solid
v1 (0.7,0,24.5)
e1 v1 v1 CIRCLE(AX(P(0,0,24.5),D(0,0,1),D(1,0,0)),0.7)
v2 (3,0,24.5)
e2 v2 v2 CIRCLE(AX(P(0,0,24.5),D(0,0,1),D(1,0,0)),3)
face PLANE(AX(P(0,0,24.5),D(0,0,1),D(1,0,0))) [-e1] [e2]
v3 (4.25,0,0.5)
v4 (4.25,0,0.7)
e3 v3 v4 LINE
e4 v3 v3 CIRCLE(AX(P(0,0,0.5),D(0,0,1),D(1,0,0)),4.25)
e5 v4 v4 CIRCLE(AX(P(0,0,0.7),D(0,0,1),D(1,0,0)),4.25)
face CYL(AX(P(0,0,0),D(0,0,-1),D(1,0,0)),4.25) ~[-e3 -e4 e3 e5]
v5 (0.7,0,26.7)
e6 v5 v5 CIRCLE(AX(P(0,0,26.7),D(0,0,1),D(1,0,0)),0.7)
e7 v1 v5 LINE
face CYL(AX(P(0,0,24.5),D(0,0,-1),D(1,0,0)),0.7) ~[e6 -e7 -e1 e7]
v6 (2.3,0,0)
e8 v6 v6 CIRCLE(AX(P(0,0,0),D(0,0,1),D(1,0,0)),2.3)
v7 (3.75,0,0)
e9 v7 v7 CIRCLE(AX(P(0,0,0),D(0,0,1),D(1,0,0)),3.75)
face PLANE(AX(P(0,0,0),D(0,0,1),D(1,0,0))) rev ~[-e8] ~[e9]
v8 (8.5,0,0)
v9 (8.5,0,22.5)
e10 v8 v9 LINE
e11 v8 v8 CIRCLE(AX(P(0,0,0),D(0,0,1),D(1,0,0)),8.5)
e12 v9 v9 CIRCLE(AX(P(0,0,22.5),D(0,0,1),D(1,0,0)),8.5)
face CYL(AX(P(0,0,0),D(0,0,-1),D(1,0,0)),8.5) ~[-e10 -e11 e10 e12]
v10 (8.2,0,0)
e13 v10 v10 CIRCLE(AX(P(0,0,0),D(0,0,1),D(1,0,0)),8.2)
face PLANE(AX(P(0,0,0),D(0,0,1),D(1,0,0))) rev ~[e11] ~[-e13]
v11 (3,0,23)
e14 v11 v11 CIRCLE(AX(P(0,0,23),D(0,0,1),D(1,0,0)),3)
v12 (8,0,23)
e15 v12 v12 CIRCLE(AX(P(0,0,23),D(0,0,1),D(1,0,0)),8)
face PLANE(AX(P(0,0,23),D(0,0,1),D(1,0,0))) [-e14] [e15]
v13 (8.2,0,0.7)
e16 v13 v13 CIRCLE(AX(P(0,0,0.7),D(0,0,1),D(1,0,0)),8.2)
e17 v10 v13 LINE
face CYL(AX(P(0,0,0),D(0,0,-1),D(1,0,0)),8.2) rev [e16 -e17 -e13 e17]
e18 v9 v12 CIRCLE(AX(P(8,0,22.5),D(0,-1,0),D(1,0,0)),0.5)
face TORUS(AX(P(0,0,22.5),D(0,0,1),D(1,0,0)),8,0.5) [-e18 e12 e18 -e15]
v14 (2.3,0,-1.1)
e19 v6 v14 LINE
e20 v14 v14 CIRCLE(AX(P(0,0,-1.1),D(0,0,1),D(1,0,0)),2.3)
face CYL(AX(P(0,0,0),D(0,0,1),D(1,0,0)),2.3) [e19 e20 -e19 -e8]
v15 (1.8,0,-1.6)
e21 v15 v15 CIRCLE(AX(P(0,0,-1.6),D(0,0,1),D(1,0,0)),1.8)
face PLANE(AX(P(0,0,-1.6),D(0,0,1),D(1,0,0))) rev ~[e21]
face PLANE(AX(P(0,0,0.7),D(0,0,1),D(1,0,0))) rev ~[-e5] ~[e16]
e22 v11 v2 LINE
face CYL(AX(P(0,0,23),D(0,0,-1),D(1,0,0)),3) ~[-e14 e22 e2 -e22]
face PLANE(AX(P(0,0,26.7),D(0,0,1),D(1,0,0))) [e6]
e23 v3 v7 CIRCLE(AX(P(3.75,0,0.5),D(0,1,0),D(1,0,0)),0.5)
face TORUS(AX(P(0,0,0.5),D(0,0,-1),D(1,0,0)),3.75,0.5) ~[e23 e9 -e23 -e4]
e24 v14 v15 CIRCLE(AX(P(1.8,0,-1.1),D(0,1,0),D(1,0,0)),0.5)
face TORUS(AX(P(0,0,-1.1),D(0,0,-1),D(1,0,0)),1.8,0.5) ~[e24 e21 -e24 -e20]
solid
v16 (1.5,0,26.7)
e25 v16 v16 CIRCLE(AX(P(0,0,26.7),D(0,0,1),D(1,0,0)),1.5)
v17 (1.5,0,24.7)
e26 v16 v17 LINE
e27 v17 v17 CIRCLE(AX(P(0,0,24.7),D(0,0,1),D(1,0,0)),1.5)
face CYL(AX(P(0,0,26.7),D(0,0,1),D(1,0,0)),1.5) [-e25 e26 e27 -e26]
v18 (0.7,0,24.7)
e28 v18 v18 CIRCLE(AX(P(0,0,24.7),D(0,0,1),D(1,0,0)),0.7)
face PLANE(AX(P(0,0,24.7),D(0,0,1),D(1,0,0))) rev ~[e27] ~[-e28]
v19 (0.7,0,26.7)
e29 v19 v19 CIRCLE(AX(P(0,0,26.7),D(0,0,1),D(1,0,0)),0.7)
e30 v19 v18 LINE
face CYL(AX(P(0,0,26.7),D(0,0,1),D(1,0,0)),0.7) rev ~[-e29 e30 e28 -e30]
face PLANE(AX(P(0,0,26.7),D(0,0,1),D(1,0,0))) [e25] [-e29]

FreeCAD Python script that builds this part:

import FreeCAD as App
import Part
import Sketcher

V = App.Vector


def edges_at(feature, points):
    """Names of the edges that pass closest to the given points."""
    edges = feature.Shape.Edges
    near = lambda p: min(range(len(edges)), key=lambda i: edges[i].distToShape(Part.Vertex(*p))[0])
    return sorted({f"Edge{near(p) + 1}" for p in points})

doc = App.newDocument("Part")
body = doc.addObject("PartDesign::Body", "Body")

sketch1 = body.newObject("Sketcher::SketchObject", "Sketch")
sketch1.AttachmentSupport = (doc.getObject("XY_Plane"), [""])
sketch1.MapMode = "FlatFace"
sketch1.addGeometry(Part.Circle(V(0, 0, 0), V(0, 0, 1), 8.5), False)
sketch1.addConstraint(Sketcher.Constraint("Coincident", 0, 3, -1, 1))
sketch1.addConstraint(Sketcher.Constraint("Diameter", 0, 17.0))
pad1 = body.newObject("PartDesign::Pad", "Pad")
pad1.Profile = sketch1
pad1.Length = 23

sketch2 = body.newObject("Sketcher::SketchObject", "Sketch001")
sketch2.AttachmentSupport = (doc.getObject("XY_Plane"), [""])
sketch2.MapMode = "FlatFace"
sketch2.addGeometry(Part.Circle(V(0, 0, 0), V(0, 0, 1), 8.2), False)
sketch2.addConstraint(Sketcher.Constraint("Coincident", 0, 3, -1, 1))
sketch2.addConstraint(Sketcher.Constraint("Diameter", 0, 16.4))
pocket1 = body.newObject("PartDesign::Pocket", "Pocket")
pocket1.Profile = sketch2
pocket1.Length = 0.7
pocket1.Reversed = True

sketch3 = body.newObject("Sketcher::SketchObject", "Sketch002")
sketch3.AttachmentSupport = (doc.getObject("XY_Plane"), [""])
sketch3.MapMode = "FlatFace"
sketch3.addGeometry(Part.Circle(V(0, 0, 0), V(0, 0, 1), 4.25), False)
sketch3.addConstraint(Sketcher.Constraint("Coincident", 0, 3, -1, 1))
sketch3.addConstraint(Sketcher.Constraint("Diameter", 0, 8.5))
pad2 = body.newObject("PartDesign::Pad", "Pad001")
pad2.Profile = sketch3
pad2.Length = 0.7

sketch4 = body.newObject("Sketcher::SketchObject", "Sketch003")
sketch4.AttachmentSupport = (doc.getObject("XY_Plane"), [""])
sketch4.MapMode = "FlatFace"
sketch4.addGeometry(Part.Circle(V(0, 0, 0), V(0, 0, 1), 2.3), False)
sketch4.addConstraint(Sketcher.Constraint("Coincident", 0, 3, -1, 1))
sketch4.addConstraint(Sketcher.Constraint("Diameter", 0, 4.6))
pad3 = body.newObject("PartDesign::Pad", "Pad002")
pad3.Profile = sketch4
pad3.Length = 1.6
pad3.Reversed = True
doc.recompute()

fillet = body.newObject("PartDesign::Fillet", "Fillet")
fillet.Base = (pad3, edges_at(pad3, [(-4.25, 0, 0), (-2.3, 0, -1.6), (-8.5, 0, 23)]))
fillet.Radius = 0.5

sketch5 = body.newObject("Sketcher::SketchObject", "Sketch004")
sketch5.AttachmentSupport = (doc.getObject("XY_Plane"), [""])
sketch5.MapMode = "FlatFace"
sketch5.AttachmentOffset = App.Placement(V(0, 0, 23), App.Rotation())
sketch5.addGeometry(Part.Circle(V(0, 0, 0), V(0, 0, 1), 3), False)
sketch5.addConstraint(Sketcher.Constraint("Coincident", 0, 3, -1, 1))
sketch5.addConstraint(Sketcher.Constraint("Diameter", 0, 6.0))
pad4 = body.newObject("PartDesign::Pad", "Pad003")
pad4.Profile = sketch5
pad4.Length = 1.5

sketch6 = body.newObject("Sketcher::SketchObject", "Sketch005")
sketch6.AttachmentSupport = (doc.getObject("XY_Plane"), [""])
sketch6.MapMode = "FlatFace"
sketch6.AttachmentOffset = App.Placement(V(0, 0, 24.5), App.Rotation())
sketch6.addGeometry(Part.Circle(V(0, 0, 0), V(0, 0, 1), 0.7), False)
sketch6.addConstraint(Sketcher.Constraint("Coincident", 0, 3, -1, 1))
sketch6.addConstraint(Sketcher.Constraint("Diameter", 0, 1.4))
pad5 = body.newObject("PartDesign::Pad", "Pad004")
pad5.Profile = sketch6
pad5.Length = 2.2
body2 = doc.addObject("PartDesign::Body", "Body001")

sketch7 = body2.newObject("Sketcher::SketchObject", "Sketch006")
sketch7.AttachmentSupport = (doc.getObject("XY_Plane001"), [""])
sketch7.MapMode = "FlatFace"
sketch7.AttachmentOffset = App.Placement(V(0, 0, 26.7), App.Rotation())
sketch7.addGeometry(Part.Circle(V(0, 0, 0), V(0, 0, 1), 1.5), False)
sketch7.addGeometry(Part.Circle(V(0, 0, 0), V(0, 0, 1), 0.7), False)
sketch7.addConstraint(Sketcher.Constraint("Coincident", 0, 3, -1, 1))
sketch7.addConstraint(Sketcher.Constraint("Coincident", 1, 3, -1, 1))
sketch7.addConstraint(Sketcher.Constraint("Diameter", 0, 3.0))
sketch7.addConstraint(Sketcher.Constraint("Diameter", 1, 1.4))
pad6 = body2.newObject("PartDesign::Pad", "Pad005")
pad6.Profile = sketch7
pad6.Length = 2
pad6.Reversed = True

doc.recompute()
